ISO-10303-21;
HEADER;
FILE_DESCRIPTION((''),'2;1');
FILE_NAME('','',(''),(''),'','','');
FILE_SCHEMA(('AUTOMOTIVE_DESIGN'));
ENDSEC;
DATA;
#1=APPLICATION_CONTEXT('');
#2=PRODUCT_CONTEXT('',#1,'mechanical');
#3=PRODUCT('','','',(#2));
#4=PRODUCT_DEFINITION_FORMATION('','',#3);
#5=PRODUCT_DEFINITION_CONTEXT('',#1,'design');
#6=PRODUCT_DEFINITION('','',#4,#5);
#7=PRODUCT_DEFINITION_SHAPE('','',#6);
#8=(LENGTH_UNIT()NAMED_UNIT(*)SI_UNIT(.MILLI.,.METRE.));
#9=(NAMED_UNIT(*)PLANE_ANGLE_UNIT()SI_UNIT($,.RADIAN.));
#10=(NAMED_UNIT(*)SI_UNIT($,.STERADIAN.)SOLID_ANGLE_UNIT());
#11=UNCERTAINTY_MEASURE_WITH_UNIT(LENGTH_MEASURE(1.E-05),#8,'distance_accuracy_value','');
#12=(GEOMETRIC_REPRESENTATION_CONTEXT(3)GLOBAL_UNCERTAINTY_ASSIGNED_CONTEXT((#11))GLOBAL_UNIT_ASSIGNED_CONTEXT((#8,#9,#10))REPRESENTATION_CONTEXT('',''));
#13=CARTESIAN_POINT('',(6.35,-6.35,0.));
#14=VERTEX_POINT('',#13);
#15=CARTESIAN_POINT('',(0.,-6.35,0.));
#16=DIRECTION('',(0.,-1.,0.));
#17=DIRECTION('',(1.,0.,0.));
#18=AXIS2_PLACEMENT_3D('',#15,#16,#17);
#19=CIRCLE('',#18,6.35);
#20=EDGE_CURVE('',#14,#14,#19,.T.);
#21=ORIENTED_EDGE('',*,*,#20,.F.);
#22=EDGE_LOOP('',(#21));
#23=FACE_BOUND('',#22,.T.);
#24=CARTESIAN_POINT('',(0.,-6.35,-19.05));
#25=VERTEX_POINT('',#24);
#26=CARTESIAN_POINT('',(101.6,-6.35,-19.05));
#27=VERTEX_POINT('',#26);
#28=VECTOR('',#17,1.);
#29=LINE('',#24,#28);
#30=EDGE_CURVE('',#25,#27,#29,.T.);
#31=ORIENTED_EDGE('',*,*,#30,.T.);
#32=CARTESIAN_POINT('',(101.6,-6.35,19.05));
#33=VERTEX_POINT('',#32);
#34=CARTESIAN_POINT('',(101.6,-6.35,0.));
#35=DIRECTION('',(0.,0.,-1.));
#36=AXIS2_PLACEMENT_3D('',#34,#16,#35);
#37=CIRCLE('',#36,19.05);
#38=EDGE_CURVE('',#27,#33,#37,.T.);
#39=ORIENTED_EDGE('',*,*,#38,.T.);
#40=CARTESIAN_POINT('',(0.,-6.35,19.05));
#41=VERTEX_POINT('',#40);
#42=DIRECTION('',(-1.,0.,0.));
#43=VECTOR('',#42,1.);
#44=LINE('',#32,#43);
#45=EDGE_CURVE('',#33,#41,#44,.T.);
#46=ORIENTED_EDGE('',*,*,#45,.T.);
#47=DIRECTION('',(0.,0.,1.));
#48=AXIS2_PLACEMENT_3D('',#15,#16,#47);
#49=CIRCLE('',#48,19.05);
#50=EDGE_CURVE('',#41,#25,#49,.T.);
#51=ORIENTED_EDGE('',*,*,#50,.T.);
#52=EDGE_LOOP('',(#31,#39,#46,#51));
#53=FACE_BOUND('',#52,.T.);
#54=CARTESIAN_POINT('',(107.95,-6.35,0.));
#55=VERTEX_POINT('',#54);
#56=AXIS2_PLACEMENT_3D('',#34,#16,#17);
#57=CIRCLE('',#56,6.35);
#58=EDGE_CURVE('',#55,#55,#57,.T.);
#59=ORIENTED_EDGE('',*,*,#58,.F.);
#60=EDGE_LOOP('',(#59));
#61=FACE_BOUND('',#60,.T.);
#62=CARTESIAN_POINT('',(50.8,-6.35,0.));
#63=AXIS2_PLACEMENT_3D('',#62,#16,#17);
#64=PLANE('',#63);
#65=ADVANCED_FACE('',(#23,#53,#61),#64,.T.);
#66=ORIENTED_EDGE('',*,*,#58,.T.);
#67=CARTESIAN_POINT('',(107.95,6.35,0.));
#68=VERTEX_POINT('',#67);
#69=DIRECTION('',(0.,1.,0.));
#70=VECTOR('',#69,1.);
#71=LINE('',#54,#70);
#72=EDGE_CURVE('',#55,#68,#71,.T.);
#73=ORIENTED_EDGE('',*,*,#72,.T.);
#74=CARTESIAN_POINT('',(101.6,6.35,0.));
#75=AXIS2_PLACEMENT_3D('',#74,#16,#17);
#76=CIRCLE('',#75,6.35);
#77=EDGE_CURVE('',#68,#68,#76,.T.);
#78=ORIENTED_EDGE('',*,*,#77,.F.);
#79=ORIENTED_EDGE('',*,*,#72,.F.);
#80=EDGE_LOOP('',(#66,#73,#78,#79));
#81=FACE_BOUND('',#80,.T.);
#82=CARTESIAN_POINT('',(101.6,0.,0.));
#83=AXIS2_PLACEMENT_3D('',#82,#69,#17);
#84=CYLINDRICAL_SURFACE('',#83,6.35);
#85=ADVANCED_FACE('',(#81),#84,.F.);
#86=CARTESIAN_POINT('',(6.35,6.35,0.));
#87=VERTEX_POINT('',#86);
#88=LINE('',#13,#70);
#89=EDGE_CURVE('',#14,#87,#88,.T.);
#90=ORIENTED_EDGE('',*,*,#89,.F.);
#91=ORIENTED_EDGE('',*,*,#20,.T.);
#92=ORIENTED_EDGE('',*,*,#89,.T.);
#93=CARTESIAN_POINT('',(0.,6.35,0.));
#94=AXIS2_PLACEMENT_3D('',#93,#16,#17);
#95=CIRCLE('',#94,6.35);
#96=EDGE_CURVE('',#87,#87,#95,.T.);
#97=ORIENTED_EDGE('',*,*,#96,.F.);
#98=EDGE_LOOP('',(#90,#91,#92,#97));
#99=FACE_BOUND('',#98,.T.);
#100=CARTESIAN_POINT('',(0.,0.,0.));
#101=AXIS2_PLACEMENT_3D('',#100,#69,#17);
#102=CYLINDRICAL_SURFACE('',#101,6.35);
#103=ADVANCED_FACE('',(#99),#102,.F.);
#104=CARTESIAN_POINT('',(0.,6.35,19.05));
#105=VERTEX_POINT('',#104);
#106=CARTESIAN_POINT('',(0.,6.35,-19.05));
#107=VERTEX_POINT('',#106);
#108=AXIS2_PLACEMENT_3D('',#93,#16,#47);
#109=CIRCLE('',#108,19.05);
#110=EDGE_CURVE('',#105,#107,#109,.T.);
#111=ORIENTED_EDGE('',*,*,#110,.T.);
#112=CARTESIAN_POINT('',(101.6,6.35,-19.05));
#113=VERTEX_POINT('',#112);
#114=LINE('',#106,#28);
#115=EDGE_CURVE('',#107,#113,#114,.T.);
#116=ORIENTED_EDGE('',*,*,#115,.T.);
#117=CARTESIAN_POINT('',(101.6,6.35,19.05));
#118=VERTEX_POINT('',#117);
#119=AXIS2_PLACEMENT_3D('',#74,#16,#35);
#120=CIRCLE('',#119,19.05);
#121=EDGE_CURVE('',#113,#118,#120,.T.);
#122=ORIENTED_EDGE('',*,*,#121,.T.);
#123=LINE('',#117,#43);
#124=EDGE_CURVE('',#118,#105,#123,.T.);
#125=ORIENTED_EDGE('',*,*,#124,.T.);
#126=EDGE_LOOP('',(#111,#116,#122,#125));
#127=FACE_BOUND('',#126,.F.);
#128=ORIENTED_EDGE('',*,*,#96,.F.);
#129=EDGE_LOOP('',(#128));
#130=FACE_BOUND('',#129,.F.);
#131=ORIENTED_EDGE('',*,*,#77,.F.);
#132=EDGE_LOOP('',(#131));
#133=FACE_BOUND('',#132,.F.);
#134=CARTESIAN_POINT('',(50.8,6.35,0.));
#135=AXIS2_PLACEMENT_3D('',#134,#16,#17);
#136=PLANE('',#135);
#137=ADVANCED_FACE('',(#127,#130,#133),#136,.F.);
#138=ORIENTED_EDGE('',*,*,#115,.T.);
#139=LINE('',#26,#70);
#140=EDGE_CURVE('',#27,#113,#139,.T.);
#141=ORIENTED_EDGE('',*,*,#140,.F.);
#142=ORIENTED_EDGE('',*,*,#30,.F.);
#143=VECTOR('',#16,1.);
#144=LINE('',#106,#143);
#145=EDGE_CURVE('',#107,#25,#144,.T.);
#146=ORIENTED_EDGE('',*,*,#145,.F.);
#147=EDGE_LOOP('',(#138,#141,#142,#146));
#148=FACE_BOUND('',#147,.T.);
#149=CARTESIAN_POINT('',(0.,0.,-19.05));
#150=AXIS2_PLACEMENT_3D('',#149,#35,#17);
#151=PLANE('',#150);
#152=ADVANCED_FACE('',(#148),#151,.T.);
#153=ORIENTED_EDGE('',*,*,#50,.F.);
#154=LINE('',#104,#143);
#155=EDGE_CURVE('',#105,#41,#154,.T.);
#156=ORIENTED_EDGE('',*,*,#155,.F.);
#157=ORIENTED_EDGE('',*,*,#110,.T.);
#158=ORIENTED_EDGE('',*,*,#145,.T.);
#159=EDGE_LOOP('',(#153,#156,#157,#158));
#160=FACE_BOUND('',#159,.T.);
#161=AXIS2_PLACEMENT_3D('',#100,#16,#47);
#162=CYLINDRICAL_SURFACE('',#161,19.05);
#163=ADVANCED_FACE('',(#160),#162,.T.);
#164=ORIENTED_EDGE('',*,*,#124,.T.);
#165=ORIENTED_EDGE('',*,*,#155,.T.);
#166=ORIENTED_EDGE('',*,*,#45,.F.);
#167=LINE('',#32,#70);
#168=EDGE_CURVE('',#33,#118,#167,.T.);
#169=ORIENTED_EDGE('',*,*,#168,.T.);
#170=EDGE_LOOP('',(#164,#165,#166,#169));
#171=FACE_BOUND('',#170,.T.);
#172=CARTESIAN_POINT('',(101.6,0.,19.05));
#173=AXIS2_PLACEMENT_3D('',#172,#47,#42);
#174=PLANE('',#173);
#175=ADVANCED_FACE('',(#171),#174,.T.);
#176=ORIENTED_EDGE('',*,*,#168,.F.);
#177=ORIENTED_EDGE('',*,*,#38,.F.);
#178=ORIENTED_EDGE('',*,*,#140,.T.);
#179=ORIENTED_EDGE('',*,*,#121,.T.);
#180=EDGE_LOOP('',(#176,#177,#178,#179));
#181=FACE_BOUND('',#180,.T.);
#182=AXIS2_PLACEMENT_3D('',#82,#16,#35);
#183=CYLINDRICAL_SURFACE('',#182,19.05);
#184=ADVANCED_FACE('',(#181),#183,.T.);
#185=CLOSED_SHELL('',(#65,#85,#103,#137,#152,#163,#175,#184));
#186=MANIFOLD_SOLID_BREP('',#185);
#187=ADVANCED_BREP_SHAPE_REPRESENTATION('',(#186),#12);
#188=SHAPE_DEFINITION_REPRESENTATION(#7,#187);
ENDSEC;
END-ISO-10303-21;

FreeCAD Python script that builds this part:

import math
import FreeCAD as App
import Part
import Sketcher
from FreeCAD import Vector
Q = App.Units.Quantity

doc = App.newDocument("Part")
body = doc.addObject("PartDesign::Body", "Body")

sketch1 = body.newObject("Sketcher::SketchObject", "Sketch")
sketch1.AttachmentSupport = (doc.getObject("XZ_Plane"), [""])
sketch1.MapMode = "FlatFace"
sketch1.addGeometry([
    Part.LineSegment(Vector(102, 19, 0), Vector(0, 19, 0)),
    Part.ArcOfCircle(Part.Circle(Vector(0, 0, 0), Vector(0, 0, 1), 19), math.radians(90), math.radians(270)),
    Part.LineSegment(Vector(0, -19, 0), Vector(102, -19, 0)),
    Part.ArcOfCircle(Part.Circle(Vector(102, 0, 0), Vector(0, 0, 1), 19), math.radians(-90), math.radians(90)),
    Part.Circle(Vector(0, 0, 0), Vector(0, 0, 1), 6),
    Part.Circle(Vector(102, 0, 0), Vector(0, 0, 1), 6),
], False)
sketch1.addConstraint([
    Sketcher.Constraint("Tangent", 0, 2, 1, 1),
    Sketcher.Constraint("Tangent", 1, 2, 2, 1),
    Sketcher.Constraint("Tangent", 2, 2, 3, 1),
    Sketcher.Constraint("Tangent", 3, 2, 0, 1),
    Sketcher.Constraint("Horizontal", 0),
    Sketcher.Constraint("Horizontal", 2),
    Sketcher.Constraint("Coincident", 1, 3, -1, 1),
    Sketcher.Constraint("Coincident", 4, 3, -1, 1),
    Sketcher.Constraint("Coincident", 5, 3, 3, 3),
    Sketcher.Constraint("Equal", 4, 5),
    Sketcher.Constraint("Diameter", 4, Q("0.5 in")),
    Sketcher.Constraint("DistanceX", 0, 2, 0, 1, Q("4 in")),
    Sketcher.Constraint("Radius", 1, Q("0.75 in")),
])
pad1 = body.newObject("PartDesign::Pad", "Pad")
pad1.Profile = sketch1
pad1.Length = Q("0.5 in")
pad1.Midplane = True

doc.recompute()
